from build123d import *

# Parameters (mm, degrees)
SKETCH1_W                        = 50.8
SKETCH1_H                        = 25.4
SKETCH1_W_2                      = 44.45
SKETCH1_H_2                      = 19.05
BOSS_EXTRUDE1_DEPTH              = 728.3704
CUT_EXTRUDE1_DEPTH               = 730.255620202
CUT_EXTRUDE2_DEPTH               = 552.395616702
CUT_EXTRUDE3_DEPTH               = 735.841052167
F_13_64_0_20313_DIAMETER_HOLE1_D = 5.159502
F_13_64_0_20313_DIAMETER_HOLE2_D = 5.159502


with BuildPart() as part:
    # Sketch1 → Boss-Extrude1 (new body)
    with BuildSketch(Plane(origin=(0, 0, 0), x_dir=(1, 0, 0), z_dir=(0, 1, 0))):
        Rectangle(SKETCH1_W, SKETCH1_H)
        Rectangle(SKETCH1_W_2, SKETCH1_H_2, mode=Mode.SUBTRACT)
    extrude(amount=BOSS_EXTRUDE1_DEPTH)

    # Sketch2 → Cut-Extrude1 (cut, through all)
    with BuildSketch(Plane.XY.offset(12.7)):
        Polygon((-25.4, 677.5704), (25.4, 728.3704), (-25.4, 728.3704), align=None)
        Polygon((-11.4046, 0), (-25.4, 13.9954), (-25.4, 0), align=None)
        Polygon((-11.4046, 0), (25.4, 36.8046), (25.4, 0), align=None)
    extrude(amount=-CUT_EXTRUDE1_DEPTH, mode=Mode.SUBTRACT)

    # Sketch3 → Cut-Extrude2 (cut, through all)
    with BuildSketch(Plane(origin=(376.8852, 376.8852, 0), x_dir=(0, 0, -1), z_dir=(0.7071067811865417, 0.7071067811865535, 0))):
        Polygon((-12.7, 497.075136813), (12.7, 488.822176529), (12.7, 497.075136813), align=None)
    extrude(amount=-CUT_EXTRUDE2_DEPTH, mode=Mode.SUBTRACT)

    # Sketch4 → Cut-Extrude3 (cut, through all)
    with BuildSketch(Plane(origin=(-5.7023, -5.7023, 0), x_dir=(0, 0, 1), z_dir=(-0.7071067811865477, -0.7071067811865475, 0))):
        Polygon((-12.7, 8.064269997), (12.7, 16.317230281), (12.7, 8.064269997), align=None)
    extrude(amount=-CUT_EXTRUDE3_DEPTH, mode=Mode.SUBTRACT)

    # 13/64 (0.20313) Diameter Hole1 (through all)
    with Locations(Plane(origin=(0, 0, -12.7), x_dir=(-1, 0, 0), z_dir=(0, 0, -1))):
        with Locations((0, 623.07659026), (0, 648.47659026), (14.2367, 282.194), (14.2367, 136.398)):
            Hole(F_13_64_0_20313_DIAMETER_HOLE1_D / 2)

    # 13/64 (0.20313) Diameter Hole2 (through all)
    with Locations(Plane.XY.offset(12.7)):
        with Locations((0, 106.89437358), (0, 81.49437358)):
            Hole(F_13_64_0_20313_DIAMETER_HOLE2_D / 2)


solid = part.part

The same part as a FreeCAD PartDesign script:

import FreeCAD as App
import Part
import Sketcher
from FreeCAD import Vector
Q = App.Units.Quantity

doc = App.newDocument("Part")
body = doc.addObject("PartDesign::Body", "Body")

# Sketch on XZ plane
sketch1 = doc.addObject("Sketcher::SketchObject", "Sketch")
body.addObject(sketch1)
sketch1.AttachmentSupport = (doc.XZ_Plane, [""])
sketch1.MapMode = "FlatFace"
sketch1.addGeometry(Part.LineSegment(Vector(-25.4, -12.7, 0), Vector(-25.4, 12.7, 0)), False)
sketch1.addGeometry(Part.LineSegment(Vector(-25.4, 12.7, 0), Vector(25.4, 12.7, 0)), False)
sketch1.addGeometry(Part.LineSegment(Vector(25.4, 12.7, 0), Vector(25.4, -12.7, 0)), False)
sketch1.addGeometry(Part.LineSegment(Vector(25.4, -12.7, 0), Vector(-25.4, -12.7, 0)), False)
sketch1.addGeometry(Part.LineSegment(Vector(22.225, 9.525, 0), Vector(-22.225, 9.525, 0)), False)
sketch1.addGeometry(Part.LineSegment(Vector(-22.225, 9.525, 0), Vector(-22.225, -9.525, 0)), False)
sketch1.addGeometry(Part.LineSegment(Vector(-22.225, -9.525, 0), Vector(22.225, -9.525, 0)), False)
sketch1.addGeometry(Part.LineSegment(Vector(22.225, -9.525, 0), Vector(22.225, 9.525, 0)), False)
sketch1.addConstraint(Sketcher.Constraint("Coincident", 0, 2, 1, 1))
sketch1.addConstraint(Sketcher.Constraint("Coincident", 1, 2, 2, 1))
sketch1.addConstraint(Sketcher.Constraint("Coincident", 2, 2, 3, 1))
sketch1.addConstraint(Sketcher.Constraint("Coincident", 3, 2, 0, 1))
sketch1.addConstraint(Sketcher.Constraint("Coincident", 4, 2, 5, 1))
sketch1.addConstraint(Sketcher.Constraint("Coincident", 5, 2, 6, 1))
sketch1.addConstraint(Sketcher.Constraint("Coincident", 6, 2, 7, 1))
sketch1.addConstraint(Sketcher.Constraint("Coincident", 7, 2, 4, 1))
sketch1.addConstraint(Sketcher.Constraint("Vertical", 0))
sketch1.addConstraint(Sketcher.Constraint("Horizontal", 1))
sketch1.addConstraint(Sketcher.Constraint("Vertical", 2))
sketch1.addConstraint(Sketcher.Constraint("Horizontal", 3))
sketch1.addConstraint(Sketcher.Constraint("Horizontal", 4))
sketch1.addConstraint(Sketcher.Constraint("Vertical", 5))
sketch1.addConstraint(Sketcher.Constraint("Horizontal", 6))
sketch1.addConstraint(Sketcher.Constraint("Vertical", 7))
sketch1.addConstraint(Sketcher.Constraint("Symmetric", 0, 2, 2, 2, -1, 1))
sketch1.addConstraint(Sketcher.Constraint("Symmetric", 4, 2, 6, 2, -1, 1))
sketch1.addConstraint(Sketcher.Constraint("DistanceX", 1, 1, 1, 2, Q("2 in")))
sketch1.addConstraint(Sketcher.Constraint("DistanceY", 0, 1, 0, 2, Q("1 in")))
sketch1.addConstraint(Sketcher.Constraint("DistanceX", 4, 2, 4, 1, Q("1.75 in")))
sketch1.addConstraint(Sketcher.Constraint("DistanceY", 5, 2, 5, 1, Q("0.75 in")))
pad1 = doc.addObject("PartDesign::Pad", "Pad")
body.addObject(pad1)
pad1.Profile = sketch1
pad1.Length = Q("28.676 in")
pad1.Reversed = True

# Sketch on XY plane
sketch2 = doc.addObject("Sketcher::SketchObject", "Sketch001")
body.addObject(sketch2)
sketch2.AttachmentSupport = (doc.XY_Plane, [""])
sketch2.MapMode = "FlatFace"
sketch2.AttachmentOffset = App.Placement(Vector(0, 0, 0.5 * 25.4), App.Rotation())
sketch2.addGeometry(Part.LineSegment(Vector(-25.4, 677.5704, 0), Vector(25.4, 728.3704, 0)), False)
sketch2.addGeometry(Part.LineSegment(Vector(25.4, 728.3704, 0), Vector(-25.4, 728.3704, 0)), False)
sketch2.addGeometry(Part.LineSegment(Vector(-25.4, 728.3704, 0), Vector(-25.4, 677.5704, 0)), False)
sketch2.addGeometry(Part.LineSegment(Vector(-11.4046, 0, 0), Vector(-25.4, 13.9954, 0)), False)
sketch2.addGeometry(Part.LineSegment(Vector(-25.4, 13.9954, 0), Vector(-25.4, 0, 0)), False)
sketch2.addGeometry(Part.LineSegment(Vector(-25.4, 0, 0), Vector(-11.4046, 0, 0)), False)
sketch2.addGeometry(Part.LineSegment(Vector(25.4, 36.8046, 0), Vector(-11.4046, 0, 0)), False)
sketch2.addGeometry(Part.LineSegment(Vector(-11.4046, 0, 0), Vector(25.4, 0, 0)), False)
sketch2.addGeometry(Part.LineSegment(Vector(25.4, 0, 0), Vector(25.4, 36.8046, 0)), False)
sketch2.addConstraint(Sketcher.Constraint("Coincident", 0, 2, 1, 1))
sketch2.addConstraint(Sketcher.Constraint("Coincident", 1, 2, 2, 1))
sketch2.addConstraint(Sketcher.Constraint("Coincident", 2, 2, 0, 1))
sketch2.addConstraint(Sketcher.Constraint("Coincident", 3, 2, 4, 1))
sketch2.addConstraint(Sketcher.Constraint("Coincident", 4, 2, 5, 1))
sketch2.addConstraint(Sketcher.Constraint("Coincident", 5, 2, 3, 1))
sketch2.addConstraint(Sketcher.Constraint("Coincident", 6, 2, 7, 1))
sketch2.addConstraint(Sketcher.Constraint("Coincident", 7, 2, 8, 1))
sketch2.addConstraint(Sketcher.Constraint("Coincident", 8, 2, 6, 1))
sketch2.addConstraint(Sketcher.Constraint("Horizontal", 1))
sketch2.addConstraint(Sketcher.Constraint("Vertical", 2))
sketch2.addConstraint(Sketcher.Constraint("Vertical", 4))
sketch2.addConstraint(Sketcher.Constraint("Horizontal", 5))
sketch2.addConstraint(Sketcher.Constraint("Horizontal", 7))
sketch2.addConstraint(Sketcher.Constraint("Vertical", 8))
sketch2.addConstraint(Sketcher.Constraint("Coincident", 6, 2, 5, 2))
sketch2.addConstraint(Sketcher.Constraint("Symmetric", 4, 2, 7, 2, -1, 1))
sketch2.addConstraint(Sketcher.Constraint("Perpendicular", 0, 3))
sketch2.addConstraint(Sketcher.Constraint("Perpendicular", 3, 6))
sketch2.addConstraint(Sketcher.Constraint("Vertical", 2, 2, 3, 2))
sketch2.addConstraint(Sketcher.Constraint("Vertical", 0, 2, 7, 2))
sketch2.addConstraint(Sketcher.Constraint("Equal", 1, 2))
sketch2.addConstraint(Sketcher.Constraint("DistanceX", 1, 2, 1, 1, Q("2 in")))
sketch2.addConstraint(Sketcher.Constraint("DistanceX", 5, 1, 5, 2, Q("0.551 in")))
sketch2.addConstraint(Sketcher.Constraint("DistanceY", -1, 1, 0, 2, Q("28.676 in")))
pocket1 = doc.addObject("PartDesign::Pocket", "Pocket")
body.addObject(pocket1)
pocket1.Profile = sketch2
pocket1.Type = "ThroughAll"

# Sketch on an angled plane
sketch3 = doc.addObject("Sketcher::SketchObject", "Sketch002")
body.addObject(sketch3)
sketch3.Placement = App.Placement(Vector(376.8852, 376.8852, 0), App.Rotation(Vector(0, 0, -1), Vector(-0.707106781, 0.707106781, 0), Vector(0.707106781, 0.707106781, 0), "ZXY"))
sketch3.addGeometry(Part.LineSegment(Vector(-12.7, 497.075137, 0), Vector(12.7, 488.822176, 0)), False)
sketch3.addGeometry(Part.LineSegment(Vector(12.7, 488.822176, 0), Vector(12.7, 497.075137, 0)), False)
sketch3.addGeometry(Part.LineSegment(Vector(12.7, 497.075137, 0), Vector(-12.7, 497.075137, 0)), False)
sketch3.addConstraint(Sketcher.Constraint("Coincident", 0, 2, 1, 1))
sketch3.addConstraint(Sketcher.Constraint("Coincident", 1, 2, 2, 1))
sketch3.addConstraint(Sketcher.Constraint("Coincident", 2, 2, 0, 1))
sketch3.addConstraint(Sketcher.Constraint("Vertical", 1))
sketch3.addConstraint(Sketcher.Constraint("Horizontal", 2))
sketch3.addConstraint(Sketcher.Constraint("DistanceX", 2, 2, 2, 1, Q("1 in")))
sketch3.addConstraint(Sketcher.Constraint("Angle", 0, Q("-18 deg")))
sketch3.addConstraint(Sketcher.Constraint("DistanceX", -1, 1, 0, 2, Q("0.5 in")))
sketch3.addConstraint(Sketcher.Constraint("DistanceY", -1, 1, 0, 2, Q("488.822176 mm")))
pocket2 = doc.addObject("PartDesign::Pocket", "Pocket001")
body.addObject(pocket2)
pocket2.Profile = sketch3
pocket2.Type = "ThroughAll"

# Sketch on an angled plane
sketch4 = doc.addObject("Sketcher::SketchObject", "Sketch003")
body.addObject(sketch4)
sketch4.Placement = App.Placement(Vector(-5.7023, -5.7023, 0), App.Rotation(Vector(0, 0, 1), Vector(-0.707106781, 0.707106781, 0), Vector(-0.707106781, -0.707106781, 0), "ZXY"))
sketch4.addGeometry(Part.LineSegment(Vector(12.7, 16.31723, 0), Vector(-12.7, 8.06427, 0)), False)
sketch4.addGeometry(Part.LineSegment(Vector(-12.7, 8.06427, 0), Vector(12.7, 8.06427, 0)), False)
sketch4.addGeometry(Part.LineSegment(Vector(12.7, 8.06427, 0), Vector(12.7, 16.31723, 0)), False)
sketch4.addConstraint(Sketcher.Constraint("Coincident", 0, 2, 1, 1))
sketch4.addConstraint(Sketcher.Constraint("Coincident", 1, 2, 2, 1))
sketch4.addConstraint(Sketcher.Constraint("Coincident", 2, 2, 0, 1))
sketch4.addConstraint(Sketcher.Constraint("Horizontal", 1))
sketch4.addConstraint(Sketcher.Constraint("Vertical", 2))
sketch4.addConstraint(Sketcher.Constraint("DistanceX", 1, 1, 1, 2, Q("1 in")))
sketch4.addConstraint(Sketcher.Constraint("Angle", 0, Q("-162 deg")))
sketch4.addConstraint(Sketcher.Constraint("DistanceX", 0, 2, -1, 1, Q("0.5 in")))
sketch4.addConstraint(Sketcher.Constraint("DistanceY", -1, 1, 0, 2, Q("8.06427 mm")))
pocket3 = doc.addObject("PartDesign::Pocket", "Pocket002")
body.addObject(pocket3)
pocket3.Profile = sketch4
pocket3.Type = "ThroughAll"

# Sketch on XY plane
sketch5 = doc.addObject("Sketcher::SketchObject", "Sketch004")
body.addObject(sketch5)
sketch5.AttachmentSupport = (doc.XY_Plane, [""])
sketch5.MapMode = "FlatFace"
sketch5.AttachmentOffset = App.Placement(Vector(0, 0, -0.5 * 25.4), App.Rotation())
sketch5.addGeometry(Part.Circle(Vector(0, 623.07659, 0), Vector(0, 0, 1), 2.579751), False)
sketch5.addGeometry(Part.Circle(Vector(0, 648.47659, 0), Vector(0, 0, 1), 2.579751), False)
sketch5.addGeometry(Part.Circle(Vector(-14.2367, 282.194, 0), Vector(0, 0, 1), 2.579751), False)
sketch5.addGeometry(Part.Circle(Vector(-14.2367, 136.398, 0), Vector(0, 0, 1), 2.579751), False)
sketch5.addConstraint(Sketcher.Constraint("Equal", 0, 1))
sketch5.addConstraint(Sketcher.Constraint("Equal", 1, 2))
sketch5.addConstraint(Sketcher.Constraint("Equal", 2, 3))
sketch5.addConstraint(Sketcher.Constraint("PointOnObject", 0, 3, -2))
sketch5.addConstraint(Sketcher.Constraint("PointOnObject", 1, 3, -2))
sketch5.addConstraint(Sketcher.Constraint("Vertical", 2, 3, 3, 3))
sketch5.addConstraint(Sketcher.Constraint("DistanceY", 0, 3, 1, 3, Q("1 in")))
sketch5.addConstraint(Sketcher.Constraint("Diameter", 0, Q("5.159502 mm")))
sketch5.addConstraint(Sketcher.Constraint("DistanceY", -1, 1, 2, 3, Q("11.11 in")))
sketch5.addConstraint(Sketcher.Constraint("DistanceY", -1, 1, 3, 3, Q("5.37 in")))
sketch5.addConstraint(Sketcher.Constraint("DistanceX", 2, 3, -1, 1, Q("0.5605 in")))
sketch5.addConstraint(Sketcher.Constraint("DistanceY", -1, 1, 0, 3, Q("623.07659 mm")))
doc.recompute()
hole = doc.addObject("PartDesign::Hole", "Hole")
body.addObject(hole)
hole.Profile = sketch5
hole.ThreadType = "None"
hole.Diameter = 5.159502
hole.DepthType = "ThroughAll"
hole.Reversed = True

# Sketch on XY plane
sketch6 = doc.addObject("Sketcher::SketchObject", "Sketch005")
body.addObject(sketch6)
sketch6.AttachmentSupport = (doc.XY_Plane, [""])
sketch6.MapMode = "FlatFace"
sketch6.AttachmentOffset = App.Placement(Vector(0, 0, 0.5 * 25.4), App.Rotation())
sketch6.addGeometry(Part.Circle(Vector(0, 106.894374, 0), Vector(0, 0, 1), 2.579751), False)
sketch6.addGeometry(Part.Circle(Vector(0, 81.494374, 0), Vector(0, 0, 1), 2.579751), False)
sketch6.addConstraint(Sketcher.Constraint("Equal", 0, 1))
sketch6.addConstraint(Sketcher.Constraint("PointOnObject", 0, 3, -2))
sketch6.addConstraint(Sketcher.Constraint("PointOnObject", 1, 3, -2))
sketch6.addConstraint(Sketcher.Constraint("DistanceY", 1, 3, 0, 3, Q("1 in")))
sketch6.addConstraint(Sketcher.Constraint("Diameter", 0, Q("5.159502 mm")))
sketch6.addConstraint(Sketcher.Constraint("DistanceY", -1, 1, 0, 3, Q("106.894374 mm")))
doc.recompute()
hole2 = doc.addObject("PartDesign::Hole", "Hole001")
body.addObject(hole2)
hole2.Profile = sketch6
hole2.ThreadType = "None"
hole2.Diameter = 5.159502
hole2.DepthType = "ThroughAll"

doc.recompute()
